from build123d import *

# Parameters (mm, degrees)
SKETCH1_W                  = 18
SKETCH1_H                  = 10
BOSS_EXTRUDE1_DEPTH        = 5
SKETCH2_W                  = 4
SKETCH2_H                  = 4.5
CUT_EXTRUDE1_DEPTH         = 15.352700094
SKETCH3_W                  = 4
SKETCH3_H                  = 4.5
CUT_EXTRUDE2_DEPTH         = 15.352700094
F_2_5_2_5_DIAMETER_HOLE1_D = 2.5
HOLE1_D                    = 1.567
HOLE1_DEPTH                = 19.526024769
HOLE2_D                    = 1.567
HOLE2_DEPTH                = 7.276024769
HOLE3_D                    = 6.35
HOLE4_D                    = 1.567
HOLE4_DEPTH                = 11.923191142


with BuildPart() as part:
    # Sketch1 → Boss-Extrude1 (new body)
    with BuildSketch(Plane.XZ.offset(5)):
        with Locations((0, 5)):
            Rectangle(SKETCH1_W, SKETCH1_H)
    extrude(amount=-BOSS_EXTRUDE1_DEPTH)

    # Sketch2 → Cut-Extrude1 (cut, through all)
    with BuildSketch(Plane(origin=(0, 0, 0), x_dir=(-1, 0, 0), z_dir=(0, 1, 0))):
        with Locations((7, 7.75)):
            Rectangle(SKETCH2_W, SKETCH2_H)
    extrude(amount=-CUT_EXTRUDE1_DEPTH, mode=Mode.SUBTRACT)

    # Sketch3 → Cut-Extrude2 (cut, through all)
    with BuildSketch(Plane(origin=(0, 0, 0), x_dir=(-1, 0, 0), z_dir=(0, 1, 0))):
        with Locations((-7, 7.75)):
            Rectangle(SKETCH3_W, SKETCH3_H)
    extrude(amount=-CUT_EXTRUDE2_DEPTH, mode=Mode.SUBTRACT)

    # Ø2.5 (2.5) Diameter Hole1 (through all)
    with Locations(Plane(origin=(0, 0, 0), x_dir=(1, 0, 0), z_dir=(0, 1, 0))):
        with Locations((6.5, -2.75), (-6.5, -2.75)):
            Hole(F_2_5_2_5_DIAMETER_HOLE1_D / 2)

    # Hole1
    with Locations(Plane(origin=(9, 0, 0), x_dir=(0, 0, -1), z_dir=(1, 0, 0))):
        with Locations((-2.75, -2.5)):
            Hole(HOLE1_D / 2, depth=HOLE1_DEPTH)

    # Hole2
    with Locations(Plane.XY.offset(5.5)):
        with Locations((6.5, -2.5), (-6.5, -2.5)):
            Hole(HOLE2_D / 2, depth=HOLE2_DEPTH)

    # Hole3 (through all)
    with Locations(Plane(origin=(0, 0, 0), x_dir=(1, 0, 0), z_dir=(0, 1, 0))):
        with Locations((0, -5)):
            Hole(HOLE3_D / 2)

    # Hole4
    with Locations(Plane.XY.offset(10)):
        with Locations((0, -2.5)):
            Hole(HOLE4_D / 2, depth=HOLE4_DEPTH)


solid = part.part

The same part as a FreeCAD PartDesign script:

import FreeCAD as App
import Part
import Sketcher
from FreeCAD import Vector


def add_polygon(sketch, points):
    """Adds a closed chain of lines whose ends are joined by coincident constraints."""
    first, n = sketch.GeometryCount, len(points)
    for a, b in zip(points, points[1:] + points[:1]):
        sketch.addGeometry(Part.LineSegment(App.Vector(*a, 0), App.Vector(*b, 0)), False)
    for i in range(n):
        sketch.addConstraint(Sketcher.Constraint("Coincident", first + i, 2, first + (i + 1) % n, 1))

doc = App.newDocument("Part")
body = doc.addObject("PartDesign::Body", "Body")

# Sketch on XZ plane
sketch1 = body.newObject("Sketcher::SketchObject", "Sketch")
sketch1.AttachmentSupport = (doc.getObject("XZ_Plane"), [""])
sketch1.MapMode = "FlatFace"
sketch1.AttachmentOffset = App.Placement(Vector(0, 0, 5), App.Rotation())
add_polygon(sketch1, [(-9, 10), (-9, 0), (9, 0), (9, 10)])  # lines 0-3
sketch1.addConstraint(Sketcher.Constraint("Vertical", 0))
sketch1.addConstraint(Sketcher.Constraint("Horizontal", 1))
sketch1.addConstraint(Sketcher.Constraint("Vertical", 2))
sketch1.addConstraint(Sketcher.Constraint("Horizontal", 3))
sketch1.addConstraint(Sketcher.Constraint("Symmetric", 0, 2, 1, 2, -1, 1))
sketch1.addConstraint(Sketcher.Constraint("DistanceX", 1, 1, 1, 2, 18.0))
sketch1.addConstraint(Sketcher.Constraint("DistanceY", 0, 2, 0, 1, 10.0))
pad1 = body.newObject("PartDesign::Pad", "Pad")
pad1.Profile = sketch1
pad1.Length = 5
pad1.Reversed = True

# Sketch on XZ plane
sketch2 = body.newObject("Sketcher::SketchObject", "Sketch001")
sketch2.AttachmentSupport = (doc.getObject("XZ_Plane"), [""])
sketch2.MapMode = "FlatFace"
add_polygon(sketch2, [(-5, 10), (-5, 5.5), (-9, 5.5), (-9, 10)])  # lines 0-3
sketch2.addConstraint(Sketcher.Constraint("Vertical", 0))
sketch2.addConstraint(Sketcher.Constraint("Horizontal", 1))
sketch2.addConstraint(Sketcher.Constraint("Vertical", 2))
sketch2.addConstraint(Sketcher.Constraint("Horizontal", 3))
sketch2.addConstraint(Sketcher.Constraint("DistanceX", 1, 2, 1, 1, 4.0))
sketch2.addConstraint(Sketcher.Constraint("DistanceY", 0, 2, 0, 1, 4.5))
sketch2.addConstraint(Sketcher.Constraint("DistanceX", 0, 2, -1, 1, 5.0))
sketch2.addConstraint(Sketcher.Constraint("DistanceY", -1, 1, 2, 2, 10.0))
pocket1 = body.newObject("PartDesign::Pocket", "Pocket")
pocket1.Profile = sketch2
pocket1.Type = "ThroughAll"
pocket1.Reversed = True

# Sketch on XZ plane
sketch3 = body.newObject("Sketcher::SketchObject", "Sketch002")
sketch3.AttachmentSupport = (doc.getObject("XZ_Plane"), [""])
sketch3.MapMode = "FlatFace"
add_polygon(sketch3, [(9, 10), (9, 5.5), (5, 5.5), (5, 10)])  # lines 0-3
sketch3.addConstraint(Sketcher.Constraint("Vertical", 0))
sketch3.addConstraint(Sketcher.Constraint("Horizontal", 1))
sketch3.addConstraint(Sketcher.Constraint("Vertical", 2))
sketch3.addConstraint(Sketcher.Constraint("Horizontal", 3))
sketch3.addConstraint(Sketcher.Constraint("DistanceX", 1, 2, 1, 1, 4.0))
sketch3.addConstraint(Sketcher.Constraint("DistanceY", 0, 2, 0, 1, 4.5))
sketch3.addConstraint(Sketcher.Constraint("DistanceX", -1, 1, 0, 2, 9.0))
sketch3.addConstraint(Sketcher.Constraint("DistanceY", -1, 1, 2, 2, 10.0))
pocket2 = body.newObject("PartDesign::Pocket", "Pocket001")
pocket2.Profile = sketch3
pocket2.Type = "ThroughAll"
pocket2.Reversed = True

# Sketch on XZ plane
sketch4 = body.newObject("Sketcher::SketchObject", "Sketch003")
sketch4.AttachmentSupport = (doc.getObject("XZ_Plane"), [""])
sketch4.MapMode = "FlatFace"
sketch4.addGeometry(Part.Circle(Vector(6.5, 2.8, 0), Vector(0, 0, 1), 1.2), False)
sketch4.addGeometry(Part.Circle(Vector(-6.5, 2.8, 0), Vector(0, 0, 1), 1.2), False)
sketch4.addConstraint(Sketcher.Constraint("Equal", 0, 1))
sketch4.addConstraint(Sketcher.Constraint("Symmetric", 0, 3, 1, 3, -2))
sketch4.addConstraint(Sketcher.Constraint("Diameter", 0, 2.5))
sketch4.addConstraint(Sketcher.Constraint("DistanceX", 1, 3, 0, 3, 13.0))
sketch4.addConstraint(Sketcher.Constraint("DistanceY", -1, 1, 0, 3, 2.75))
doc.recompute()
hole = body.newObject("PartDesign::Hole", "Hole")
hole.Profile = sketch4
hole.ThreadType = "None"
hole.Diameter = 2.5
hole.DepthType = "ThroughAll"
hole.Reversed = True

# Sketch on YZ plane
sketch5 = body.newObject("Sketcher::SketchObject", "Sketch004")
sketch5.AttachmentSupport = (doc.getObject("YZ_Plane"), [""])
sketch5.MapMode = "FlatFace"
sketch5.AttachmentOffset = App.Placement(Vector(0, 0, 9), App.Rotation())
sketch5.addGeometry(Part.Circle(Vector(-2.5, 2.8, 0), Vector(0, 0, 1), 0.8), False)
sketch5.addConstraint(Sketcher.Constraint("Diameter", 0, 1.567))
sketch5.addConstraint(Sketcher.Constraint("DistanceX", 0, 3, -1, 1, 2.5))
sketch5.addConstraint(Sketcher.Constraint("DistanceY", -1, 1, 0, 3, 2.75))
doc.recompute()
hole2 = body.newObject("PartDesign::Hole", "Hole001")
hole2.Profile = sketch5
hole2.ThreadType = "None"
hole2.Diameter = 1.567
hole2.DepthType = "Dimension"
hole2.Depth = 19.526025
hole2.DrillPoint = "Flat"

# Sketch on XY plane
sketch6 = body.newObject("Sketcher::SketchObject", "Sketch005")
sketch6.AttachmentSupport = (doc.getObject("XY_Plane"), [""])
sketch6.MapMode = "FlatFace"
sketch6.AttachmentOffset = App.Placement(Vector(0, 0, 5.5), App.Rotation())
sketch6.addGeometry(Part.Circle(Vector(6.5, -2.5, 0), Vector(0, 0, 1), 0.8), False)
sketch6.addGeometry(Part.Circle(Vector(-6.5, -2.5, 0), Vector(0, 0, 1), 0.8), False)
sketch6.addConstraint(Sketcher.Constraint("Equal", 0, 1))
sketch6.addConstraint(Sketcher.Constraint("Symmetric", 0, 3, 1, 3, -2))
sketch6.addConstraint(Sketcher.Constraint("Diameter", 0, 1.567))
sketch6.addConstraint(Sketcher.Constraint("DistanceX", 1, 3, 0, 3, 13.0))
sketch6.addConstraint(Sketcher.Constraint("DistanceY", 0, 3, -1, 1, 2.5))
doc.recompute()
hole3 = body.newObject("PartDesign::Hole", "Hole002")
hole3.Profile = sketch6
hole3.ThreadType = "None"
hole3.Diameter = 1.567
hole3.DepthType = "Dimension"
hole3.Depth = 7.276025
hole3.DrillPoint = "Flat"

# Sketch on XZ plane
sketch7 = body.newObject("Sketcher::SketchObject", "Sketch006")
sketch7.AttachmentSupport = (doc.getObject("XZ_Plane"), [""])
sketch7.MapMode = "FlatFace"
sketch7.addGeometry(Part.Circle(Vector(0, 5, 0), Vector(0, 0, 1), 3.2), False)
sketch7.addConstraint(Sketcher.Constraint("PointOnObject", 0, 3, -2))
sketch7.addConstraint(Sketcher.Constraint("Diameter", 0, 6.35))
sketch7.addConstraint(Sketcher.Constraint("DistanceY", -1, 1, 0, 3, 5.0))
doc.recompute()
hole4 = body.newObject("PartDesign::Hole", "Hole003")
hole4.Profile = sketch7
hole4.ThreadType = "None"
hole4.Diameter = 6.35
hole4.DepthType = "ThroughAll"
hole4.Reversed = True

# Sketch on XY plane
sketch8 = body.newObject("Sketcher::SketchObject", "Sketch007")
sketch8.AttachmentSupport = (doc.getObject("XY_Plane"), [""])
sketch8.MapMode = "FlatFace"
sketch8.AttachmentOffset = App.Placement(Vector(0, 0, 10), App.Rotation())
sketch8.addGeometry(Part.Circle(Vector(0, -2.5, 0), Vector(0, 0, 1), 0.8), False)
sketch8.addConstraint(Sketcher.Constraint("PointOnObject", 0, 3, -2))
sketch8.addConstraint(Sketcher.Constraint("Diameter", 0, 1.567))
sketch8.addConstraint(Sketcher.Constraint("DistanceY", 0, 3, -1, 1, 2.5))
doc.recompute()
hole5 = body.newObject("PartDesign::Hole", "Hole004")
hole5.Profile = sketch8
hole5.ThreadType = "None"
hole5.Diameter = 1.567
hole5.DepthType = "Dimension"
hole5.Depth = 11.923191
hole5.DrillPoint = "Flat"

doc.recompute()
